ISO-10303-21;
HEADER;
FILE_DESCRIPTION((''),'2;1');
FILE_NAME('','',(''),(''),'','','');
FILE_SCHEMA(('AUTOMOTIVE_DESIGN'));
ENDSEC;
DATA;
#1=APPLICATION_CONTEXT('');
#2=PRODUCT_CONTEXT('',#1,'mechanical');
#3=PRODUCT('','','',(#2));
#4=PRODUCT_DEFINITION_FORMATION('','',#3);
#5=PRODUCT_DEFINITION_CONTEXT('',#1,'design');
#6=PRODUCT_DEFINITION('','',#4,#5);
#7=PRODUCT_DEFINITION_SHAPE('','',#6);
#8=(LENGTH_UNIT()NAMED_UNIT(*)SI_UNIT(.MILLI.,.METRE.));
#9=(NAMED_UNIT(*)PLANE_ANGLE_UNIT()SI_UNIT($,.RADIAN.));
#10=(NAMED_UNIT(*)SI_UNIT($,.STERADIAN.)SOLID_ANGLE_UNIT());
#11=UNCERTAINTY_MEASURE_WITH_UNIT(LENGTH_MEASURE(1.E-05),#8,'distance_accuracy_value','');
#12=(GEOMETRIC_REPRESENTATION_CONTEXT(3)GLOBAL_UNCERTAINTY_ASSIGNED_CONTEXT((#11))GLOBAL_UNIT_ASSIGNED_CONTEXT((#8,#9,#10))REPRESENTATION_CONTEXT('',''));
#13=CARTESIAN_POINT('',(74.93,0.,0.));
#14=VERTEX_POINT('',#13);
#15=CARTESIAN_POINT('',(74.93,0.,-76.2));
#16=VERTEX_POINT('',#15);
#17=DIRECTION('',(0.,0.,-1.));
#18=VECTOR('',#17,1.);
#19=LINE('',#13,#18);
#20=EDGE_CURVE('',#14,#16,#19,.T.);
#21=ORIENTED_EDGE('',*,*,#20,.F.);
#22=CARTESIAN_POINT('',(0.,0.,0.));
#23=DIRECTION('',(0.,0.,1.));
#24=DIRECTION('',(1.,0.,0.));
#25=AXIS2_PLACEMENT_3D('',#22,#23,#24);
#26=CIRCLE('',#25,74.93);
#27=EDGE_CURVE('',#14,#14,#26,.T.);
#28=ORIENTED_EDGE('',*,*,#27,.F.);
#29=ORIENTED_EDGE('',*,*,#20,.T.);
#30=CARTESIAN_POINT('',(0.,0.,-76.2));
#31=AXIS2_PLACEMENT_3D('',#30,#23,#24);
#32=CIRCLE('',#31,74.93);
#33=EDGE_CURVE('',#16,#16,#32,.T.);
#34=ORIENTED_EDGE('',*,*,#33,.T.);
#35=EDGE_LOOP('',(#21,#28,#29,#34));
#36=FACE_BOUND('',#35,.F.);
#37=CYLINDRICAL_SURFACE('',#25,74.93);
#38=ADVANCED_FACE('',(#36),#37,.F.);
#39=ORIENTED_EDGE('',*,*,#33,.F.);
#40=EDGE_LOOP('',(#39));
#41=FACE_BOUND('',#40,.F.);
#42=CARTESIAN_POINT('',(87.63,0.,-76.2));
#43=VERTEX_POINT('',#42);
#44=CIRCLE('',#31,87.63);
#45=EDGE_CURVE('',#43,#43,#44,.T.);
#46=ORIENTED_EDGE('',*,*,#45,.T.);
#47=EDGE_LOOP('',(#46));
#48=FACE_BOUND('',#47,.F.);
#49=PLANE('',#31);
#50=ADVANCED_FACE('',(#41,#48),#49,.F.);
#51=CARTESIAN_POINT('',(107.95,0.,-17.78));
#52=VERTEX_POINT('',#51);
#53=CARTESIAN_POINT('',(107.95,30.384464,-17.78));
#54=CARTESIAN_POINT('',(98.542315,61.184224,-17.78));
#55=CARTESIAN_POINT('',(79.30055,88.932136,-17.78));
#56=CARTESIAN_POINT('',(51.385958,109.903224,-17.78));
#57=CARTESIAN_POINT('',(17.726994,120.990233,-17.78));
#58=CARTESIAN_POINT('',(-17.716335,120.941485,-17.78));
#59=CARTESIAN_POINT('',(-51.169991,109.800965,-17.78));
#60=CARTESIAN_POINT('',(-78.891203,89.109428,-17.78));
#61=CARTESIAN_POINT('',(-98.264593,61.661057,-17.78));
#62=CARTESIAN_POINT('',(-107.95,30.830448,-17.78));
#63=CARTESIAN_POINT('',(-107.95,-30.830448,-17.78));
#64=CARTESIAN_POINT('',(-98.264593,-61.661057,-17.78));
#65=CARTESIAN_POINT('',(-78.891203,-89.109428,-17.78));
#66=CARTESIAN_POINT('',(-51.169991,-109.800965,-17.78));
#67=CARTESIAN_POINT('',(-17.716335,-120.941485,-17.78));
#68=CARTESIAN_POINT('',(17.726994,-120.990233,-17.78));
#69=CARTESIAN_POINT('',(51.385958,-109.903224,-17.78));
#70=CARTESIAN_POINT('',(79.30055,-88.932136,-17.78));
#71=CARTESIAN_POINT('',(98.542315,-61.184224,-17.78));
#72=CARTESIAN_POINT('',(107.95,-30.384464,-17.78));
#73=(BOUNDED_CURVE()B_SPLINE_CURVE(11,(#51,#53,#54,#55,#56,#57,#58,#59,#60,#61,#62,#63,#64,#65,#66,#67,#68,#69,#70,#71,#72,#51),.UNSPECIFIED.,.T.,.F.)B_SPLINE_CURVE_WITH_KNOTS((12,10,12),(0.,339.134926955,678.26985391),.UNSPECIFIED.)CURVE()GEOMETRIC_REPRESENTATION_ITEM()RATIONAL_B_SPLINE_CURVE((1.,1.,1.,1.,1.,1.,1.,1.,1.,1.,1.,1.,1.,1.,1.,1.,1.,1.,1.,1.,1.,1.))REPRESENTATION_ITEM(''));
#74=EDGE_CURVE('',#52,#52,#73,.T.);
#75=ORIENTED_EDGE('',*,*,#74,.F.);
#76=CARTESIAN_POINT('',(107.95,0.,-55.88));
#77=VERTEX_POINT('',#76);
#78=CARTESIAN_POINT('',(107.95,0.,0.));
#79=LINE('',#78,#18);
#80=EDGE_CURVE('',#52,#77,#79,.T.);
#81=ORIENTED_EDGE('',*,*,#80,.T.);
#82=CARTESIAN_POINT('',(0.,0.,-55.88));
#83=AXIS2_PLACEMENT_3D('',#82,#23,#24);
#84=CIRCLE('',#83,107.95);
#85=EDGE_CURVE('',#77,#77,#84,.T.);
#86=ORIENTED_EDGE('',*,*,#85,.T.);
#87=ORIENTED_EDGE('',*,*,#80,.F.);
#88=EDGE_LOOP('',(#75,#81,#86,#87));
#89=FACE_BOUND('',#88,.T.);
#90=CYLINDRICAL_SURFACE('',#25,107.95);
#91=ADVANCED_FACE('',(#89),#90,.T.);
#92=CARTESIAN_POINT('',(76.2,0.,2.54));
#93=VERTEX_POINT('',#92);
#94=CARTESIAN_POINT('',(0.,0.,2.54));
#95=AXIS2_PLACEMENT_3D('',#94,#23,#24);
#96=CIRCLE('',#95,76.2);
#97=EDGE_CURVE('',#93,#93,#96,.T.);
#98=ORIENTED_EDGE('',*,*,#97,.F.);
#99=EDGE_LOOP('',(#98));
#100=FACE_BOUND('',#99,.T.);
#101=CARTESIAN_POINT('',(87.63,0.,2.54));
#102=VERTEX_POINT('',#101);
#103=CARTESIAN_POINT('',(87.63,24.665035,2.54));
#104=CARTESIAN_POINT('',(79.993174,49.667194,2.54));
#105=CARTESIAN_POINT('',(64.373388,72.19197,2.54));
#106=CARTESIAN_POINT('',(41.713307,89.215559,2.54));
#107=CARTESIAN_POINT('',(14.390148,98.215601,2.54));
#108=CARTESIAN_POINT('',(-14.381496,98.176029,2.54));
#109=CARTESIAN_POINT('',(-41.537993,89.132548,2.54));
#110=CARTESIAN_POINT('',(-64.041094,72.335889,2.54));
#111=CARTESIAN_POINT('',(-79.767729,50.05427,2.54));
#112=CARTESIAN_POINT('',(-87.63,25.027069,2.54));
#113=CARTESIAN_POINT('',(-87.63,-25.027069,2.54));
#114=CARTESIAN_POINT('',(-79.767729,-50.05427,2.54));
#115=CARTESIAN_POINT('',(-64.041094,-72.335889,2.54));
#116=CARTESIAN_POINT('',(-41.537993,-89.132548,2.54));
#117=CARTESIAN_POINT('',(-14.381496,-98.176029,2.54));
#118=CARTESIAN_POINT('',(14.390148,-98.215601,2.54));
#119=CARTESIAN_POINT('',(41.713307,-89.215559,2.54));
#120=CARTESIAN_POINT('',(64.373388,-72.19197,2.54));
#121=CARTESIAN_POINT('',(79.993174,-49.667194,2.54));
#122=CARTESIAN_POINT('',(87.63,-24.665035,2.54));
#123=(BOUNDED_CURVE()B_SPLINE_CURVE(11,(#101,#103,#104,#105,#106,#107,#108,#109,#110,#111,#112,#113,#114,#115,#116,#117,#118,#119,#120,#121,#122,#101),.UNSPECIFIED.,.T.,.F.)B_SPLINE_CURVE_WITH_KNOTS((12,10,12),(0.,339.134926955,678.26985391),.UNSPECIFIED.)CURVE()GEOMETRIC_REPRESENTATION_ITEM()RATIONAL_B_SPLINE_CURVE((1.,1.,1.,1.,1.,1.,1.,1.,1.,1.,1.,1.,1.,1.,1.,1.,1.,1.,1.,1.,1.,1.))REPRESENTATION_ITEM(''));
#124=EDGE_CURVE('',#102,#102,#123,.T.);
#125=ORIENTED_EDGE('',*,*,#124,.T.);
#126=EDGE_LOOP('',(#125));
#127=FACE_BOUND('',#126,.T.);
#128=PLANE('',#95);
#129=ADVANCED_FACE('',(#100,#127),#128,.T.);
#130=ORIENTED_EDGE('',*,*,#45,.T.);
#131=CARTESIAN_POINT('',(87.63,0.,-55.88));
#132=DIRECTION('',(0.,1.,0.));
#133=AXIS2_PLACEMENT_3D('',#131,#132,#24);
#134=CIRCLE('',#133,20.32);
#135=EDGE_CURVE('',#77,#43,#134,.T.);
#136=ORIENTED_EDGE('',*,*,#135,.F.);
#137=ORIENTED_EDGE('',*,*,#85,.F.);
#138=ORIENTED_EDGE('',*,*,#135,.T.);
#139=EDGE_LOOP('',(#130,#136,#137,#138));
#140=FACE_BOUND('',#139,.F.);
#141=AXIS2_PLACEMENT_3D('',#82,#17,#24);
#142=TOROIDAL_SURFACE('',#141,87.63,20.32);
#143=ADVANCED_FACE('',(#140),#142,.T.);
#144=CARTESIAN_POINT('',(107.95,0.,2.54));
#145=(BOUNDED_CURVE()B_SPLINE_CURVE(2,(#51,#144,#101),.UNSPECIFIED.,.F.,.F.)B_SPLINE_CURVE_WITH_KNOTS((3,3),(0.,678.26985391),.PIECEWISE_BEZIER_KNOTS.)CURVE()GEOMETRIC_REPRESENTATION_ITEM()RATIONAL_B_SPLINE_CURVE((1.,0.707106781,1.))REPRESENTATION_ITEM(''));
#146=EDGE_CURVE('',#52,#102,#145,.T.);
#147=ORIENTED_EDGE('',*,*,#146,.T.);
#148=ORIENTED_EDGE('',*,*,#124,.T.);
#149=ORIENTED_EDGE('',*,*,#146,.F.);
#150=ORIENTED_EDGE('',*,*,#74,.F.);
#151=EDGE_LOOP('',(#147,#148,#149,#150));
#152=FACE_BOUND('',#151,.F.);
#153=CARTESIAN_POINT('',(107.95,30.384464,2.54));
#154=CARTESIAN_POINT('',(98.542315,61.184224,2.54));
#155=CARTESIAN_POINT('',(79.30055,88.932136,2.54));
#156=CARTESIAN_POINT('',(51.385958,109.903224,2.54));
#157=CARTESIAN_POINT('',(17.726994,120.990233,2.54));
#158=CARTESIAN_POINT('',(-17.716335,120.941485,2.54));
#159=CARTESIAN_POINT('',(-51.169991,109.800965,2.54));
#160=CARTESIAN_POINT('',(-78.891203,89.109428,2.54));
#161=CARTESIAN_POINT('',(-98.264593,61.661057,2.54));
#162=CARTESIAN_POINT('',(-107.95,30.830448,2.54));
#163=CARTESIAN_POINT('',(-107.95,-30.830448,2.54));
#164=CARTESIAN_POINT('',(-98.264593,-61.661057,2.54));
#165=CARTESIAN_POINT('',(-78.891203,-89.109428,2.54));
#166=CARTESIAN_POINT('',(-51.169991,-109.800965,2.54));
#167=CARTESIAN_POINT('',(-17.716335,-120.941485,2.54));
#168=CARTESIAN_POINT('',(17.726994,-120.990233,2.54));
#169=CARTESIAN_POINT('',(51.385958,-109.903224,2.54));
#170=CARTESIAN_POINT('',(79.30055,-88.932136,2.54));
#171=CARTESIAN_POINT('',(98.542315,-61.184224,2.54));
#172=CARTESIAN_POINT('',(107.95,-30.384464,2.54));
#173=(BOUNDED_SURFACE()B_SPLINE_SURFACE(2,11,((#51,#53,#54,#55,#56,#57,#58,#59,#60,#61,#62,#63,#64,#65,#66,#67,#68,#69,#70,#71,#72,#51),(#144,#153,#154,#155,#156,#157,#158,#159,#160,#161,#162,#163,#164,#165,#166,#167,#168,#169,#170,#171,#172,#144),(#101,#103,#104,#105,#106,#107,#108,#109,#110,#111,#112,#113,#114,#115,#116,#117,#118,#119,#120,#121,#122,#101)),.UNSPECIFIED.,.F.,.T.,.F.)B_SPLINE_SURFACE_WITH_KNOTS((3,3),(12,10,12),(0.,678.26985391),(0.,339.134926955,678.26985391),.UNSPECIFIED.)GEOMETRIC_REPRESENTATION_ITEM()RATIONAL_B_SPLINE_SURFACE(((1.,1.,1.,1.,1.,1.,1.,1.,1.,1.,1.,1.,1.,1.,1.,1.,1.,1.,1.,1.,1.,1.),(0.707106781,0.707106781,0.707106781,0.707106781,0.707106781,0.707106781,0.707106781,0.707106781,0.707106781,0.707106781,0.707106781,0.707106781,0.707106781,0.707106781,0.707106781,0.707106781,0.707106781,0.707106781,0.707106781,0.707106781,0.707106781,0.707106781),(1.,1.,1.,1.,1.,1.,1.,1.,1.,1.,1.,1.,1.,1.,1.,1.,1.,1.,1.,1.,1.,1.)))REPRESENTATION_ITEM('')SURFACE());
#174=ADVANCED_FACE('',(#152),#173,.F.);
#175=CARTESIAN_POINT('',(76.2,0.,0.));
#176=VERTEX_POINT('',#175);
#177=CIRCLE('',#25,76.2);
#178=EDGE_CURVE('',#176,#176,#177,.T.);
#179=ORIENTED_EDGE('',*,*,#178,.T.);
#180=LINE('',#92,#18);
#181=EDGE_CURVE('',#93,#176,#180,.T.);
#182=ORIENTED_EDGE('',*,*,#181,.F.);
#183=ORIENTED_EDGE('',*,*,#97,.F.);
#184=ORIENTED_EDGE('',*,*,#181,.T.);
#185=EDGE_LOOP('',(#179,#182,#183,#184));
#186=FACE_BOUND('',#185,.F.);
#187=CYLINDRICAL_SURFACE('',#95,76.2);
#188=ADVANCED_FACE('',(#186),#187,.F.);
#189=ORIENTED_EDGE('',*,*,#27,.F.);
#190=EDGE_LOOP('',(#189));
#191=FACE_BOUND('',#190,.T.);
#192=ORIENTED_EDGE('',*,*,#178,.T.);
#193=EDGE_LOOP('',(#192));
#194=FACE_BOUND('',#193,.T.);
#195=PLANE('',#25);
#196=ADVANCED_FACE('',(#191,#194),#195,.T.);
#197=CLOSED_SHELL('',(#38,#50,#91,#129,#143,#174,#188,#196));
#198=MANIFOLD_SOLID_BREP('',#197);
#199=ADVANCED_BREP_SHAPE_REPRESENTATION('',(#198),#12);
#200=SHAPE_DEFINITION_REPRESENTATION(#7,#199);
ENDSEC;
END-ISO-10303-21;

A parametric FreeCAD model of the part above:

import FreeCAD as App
import Part
import Sketcher
Q = App.Units.Quantity


def edges_at(feature, points):
    """Names of the edges that pass closest to the given points."""
    edges = feature.Shape.Edges
    near = lambda p: min(range(len(edges)), key=lambda i: edges[i].distToShape(Part.Vertex(*p))[0])
    return sorted({f"Edge{near(p) + 1}" for p in points})

doc = App.newDocument("Part")
body = doc.addObject("PartDesign::Body", "Body")

# Sketch on XY plane
sketch1 = doc.addObject("Sketcher::SketchObject", "Sketch")
body.addObject(sketch1)
sketch1.AttachmentSupport = (doc.XY_Plane, [""])
sketch1.MapMode = "FlatFace"
sketch1.addGeometry([
    Part.Circle(App.Vector(0, 0, 0), App.Vector(0, 0, 1), 107.95),
    Part.Circle(App.Vector(0, 0, 0), App.Vector(0, 0, 1), 74.93),
], False)
sketch1.addConstraint([
    Sketcher.Constraint("Coincident", 0, 3, -1, 1),
    Sketcher.Constraint("Coincident", 1, 3, -1, 1),
    Sketcher.Constraint("Diameter", 0, Q("8.5 in")),
    Sketcher.Constraint("Diameter", 1, Q("5.9 in")),
])
pad1 = doc.addObject("PartDesign::Pad", "Pad")
body.addObject(pad1)
pad1.Profile = sketch1
pad1.Type = "TwoLengths"
pad1.Length = Q("3 in")
pad1.Length2 = Q("0.1 in")
pad1.Reversed = True

# Sketch on XY plane
sketch2 = doc.addObject("Sketcher::SketchObject", "Sketch001")
body.addObject(sketch2)
sketch2.AttachmentSupport = (doc.XY_Plane, [""])
sketch2.MapMode = "FlatFace"
sketch2.AttachmentOffset = App.Placement(App.Vector(0, 0, 0.1 * 25.4), App.Rotation())
sketch2.addGeometry([
    Part.Circle(App.Vector(0, 0, 0), App.Vector(0, 0, 1), 76.2),
    Part.Circle(App.Vector(0, 0, 0), App.Vector(0, 0, 1), 74.93),
], False)
sketch2.addConstraint([
    Sketcher.Constraint("Coincident", 0, 3, -1, 1),
    Sketcher.Constraint("Coincident", 1, 3, -1, 1),
    Sketcher.Constraint("Diameter", 0, Q("6 in")),
    Sketcher.Constraint("Diameter", 1, Q("5.9 in")),
])
pocket1 = doc.addObject("PartDesign::Pocket", "Pocket")
body.addObject(pocket1)
pocket1.Profile = sketch2
pocket1.Length = Q("0.1 in")
doc.recompute()

fillet = doc.addObject("PartDesign::Fillet", "Fillet")
body.addObject(fillet)
fillet.Base = (pocket1, edges_at(pocket1, [(-107.95, 0, 2.54), (-107.95, 0, -76.2)]))
fillet.Radius = Q("0.8 in")

doc.recompute()
